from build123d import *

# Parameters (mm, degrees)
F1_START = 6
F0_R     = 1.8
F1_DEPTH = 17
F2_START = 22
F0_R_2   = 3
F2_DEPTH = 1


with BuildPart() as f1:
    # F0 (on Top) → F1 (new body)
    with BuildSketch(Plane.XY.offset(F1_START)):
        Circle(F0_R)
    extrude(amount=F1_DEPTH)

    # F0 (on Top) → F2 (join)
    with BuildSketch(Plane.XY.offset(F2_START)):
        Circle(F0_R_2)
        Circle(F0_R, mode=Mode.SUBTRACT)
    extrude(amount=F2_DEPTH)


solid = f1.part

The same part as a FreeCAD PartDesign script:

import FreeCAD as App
import Part
import Sketcher

doc = App.newDocument("Part")
body = doc.addObject("PartDesign::Body", "Body")

sketch1 = body.newObject("Sketcher::SketchObject", "Sketch")
sketch1.AttachmentSupport = (doc.getObject("XY_Plane"), [""])
sketch1.MapMode = "FlatFace"
sketch1.AttachmentOffset = App.Placement(App.Vector(0, 0, 6), App.Rotation())
sketch1.addGeometry(Part.Circle(App.Vector(0, 0, 0), App.Vector(0, 0, 1), 1.8), False)
sketch1.addConstraint([
    Sketcher.Constraint("Coincident", 0, 3, -1, 1),
    Sketcher.Constraint("Diameter", 0, 3.6),
])
pad1 = body.newObject("PartDesign::Pad", "Pad")
pad1.Profile = sketch1
pad1.Length = 17

sketch2 = body.newObject("Sketcher::SketchObject", "Sketch001")
sketch2.AttachmentSupport = (doc.getObject("XY_Plane"), [""])
sketch2.MapMode = "FlatFace"
sketch2.AttachmentOffset = App.Placement(App.Vector(0, 0, 22), App.Rotation())
sketch2.addGeometry([
    Part.Circle(App.Vector(0, 0, 0), App.Vector(0, 0, 1), 3),
    Part.Circle(App.Vector(0, 0, 0), App.Vector(0, 0, 1), 1.8),
], False)
sketch2.addConstraint([
    Sketcher.Constraint("Coincident", 0, 3, -1, 1),
    Sketcher.Constraint("Coincident", 1, 3, -1, 1),
    Sketcher.Constraint("Diameter", 0, 6.0),
    Sketcher.Constraint("Diameter", 1, 3.6),
])
pad2 = body.newObject("PartDesign::Pad", "Pad001")
pad2.Profile = sketch2
pad2.Length = 1

doc.recompute()
